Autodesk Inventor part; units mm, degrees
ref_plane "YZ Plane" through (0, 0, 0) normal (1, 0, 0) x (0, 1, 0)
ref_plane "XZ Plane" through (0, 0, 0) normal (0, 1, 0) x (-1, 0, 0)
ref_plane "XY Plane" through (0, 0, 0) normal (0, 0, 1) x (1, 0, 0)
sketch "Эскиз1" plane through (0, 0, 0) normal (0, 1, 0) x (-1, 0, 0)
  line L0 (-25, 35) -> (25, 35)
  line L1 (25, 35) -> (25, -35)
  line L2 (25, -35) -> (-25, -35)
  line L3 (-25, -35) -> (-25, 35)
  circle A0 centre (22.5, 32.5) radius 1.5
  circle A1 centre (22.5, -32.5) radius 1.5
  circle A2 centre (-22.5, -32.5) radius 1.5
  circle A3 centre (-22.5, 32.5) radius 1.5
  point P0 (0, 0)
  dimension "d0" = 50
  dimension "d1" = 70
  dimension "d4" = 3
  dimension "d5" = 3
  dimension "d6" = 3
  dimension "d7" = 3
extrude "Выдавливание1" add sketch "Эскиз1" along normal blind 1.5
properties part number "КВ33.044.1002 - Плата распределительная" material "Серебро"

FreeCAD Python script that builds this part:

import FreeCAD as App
import Part
import Sketcher
from FreeCAD import Vector
Q = App.Units.Quantity

doc = App.newDocument("Part")
params = doc.addObject("Spreadsheet::Sheet", "Params")
for row, (alias, value) in enumerate([
    ("sketch1_diameter", "3 mm"),
    ("sketch1_width", "50 mm"),
    ("sketch1_height", "70 mm"),
    ("pad1_length", "1.5 mm"),
], start=1):
    params.set(f"A{row}", alias)
    params.set(f"B{row}", "=" + value)
    params.setAlias(f"B{row}", alias)

body = doc.addObject("PartDesign::Body", "Body")

# Sketch on XZ plane
sketch1 = body.newObject("Sketcher::SketchObject", "Sketch")
sketch1.AttachmentSupport = (doc.getObject("XZ_Plane"), [""])
sketch1.MapMode = "FlatFace"
sketch1.addGeometry(Part.LineSegment(Vector(-25, 35, 0), Vector(25, 35, 0)), False)
sketch1.addGeometry(Part.LineSegment(Vector(25, 35, 0), Vector(25, -35, 0)), False)
sketch1.addGeometry(Part.LineSegment(Vector(25, -35, 0), Vector(-25, -35, 0)), False)
sketch1.addGeometry(Part.LineSegment(Vector(-25, -35, 0), Vector(-25, 35, 0)), False)
sketch1.addGeometry(Part.Circle(Vector(22.5, -32.5, 0), Vector(0, 0, 1), 1.5), False)
sketch1.addGeometry(Part.Circle(Vector(-22.5, -32.5, 0), Vector(0, 0, 1), 1.5), False)
sketch1.addGeometry(Part.Circle(Vector(22.5, 32.5, 0), Vector(0, 0, 1), 1.5), False)
sketch1.addGeometry(Part.Circle(Vector(-22.5, 32.5, 0), Vector(0, 0, 1), 1.5), False)
sketch1.addConstraint(Sketcher.Constraint("Coincident", 0, 2, 1, 1))
sketch1.addConstraint(Sketcher.Constraint("Coincident", 1, 2, 2, 1))
sketch1.addConstraint(Sketcher.Constraint("Coincident", 2, 2, 3, 1))
sketch1.addConstraint(Sketcher.Constraint("Coincident", 3, 2, 0, 1))
sketch1.addConstraint(Sketcher.Constraint("Horizontal", 0))
sketch1.addConstraint(Sketcher.Constraint("Vertical", 1))
sketch1.addConstraint(Sketcher.Constraint("Horizontal", 2))
sketch1.addConstraint(Sketcher.Constraint("Vertical", 3))
sketch1.addConstraint(Sketcher.Constraint("Equal", 4, 5))
sketch1.addConstraint(Sketcher.Constraint("Equal", 5, 6))
sketch1.addConstraint(Sketcher.Constraint("Equal", 6, 7))
sketch1.addConstraint(Sketcher.Constraint("Symmetric", 5, 3, 6, 3, -1, 1))
sketch1.addConstraint(Sketcher.Constraint("Symmetric", 4, 3, 7, 3, -1, 1))
sketch1.addConstraint(Sketcher.Constraint("Symmetric", 0, 2, 2, 2, -1, 1))
sketch1.addConstraint(Sketcher.Constraint("Symmetric", 4, 3, 5, 3, -2))
sketch1.addConstraint(Sketcher.Constraint("Diameter", 4, Q("3 mm")))
sketch1.addConstraint(Sketcher.Constraint("DistanceX", 0, 1, 0, 2, Q("50 mm")))
sketch1.addConstraint(Sketcher.Constraint("DistanceY", 1, 2, 1, 1, Q("70 mm")))
sketch1.addConstraint(Sketcher.Constraint("DistanceX", 5, 3, 4, 3, Q("45 mm")))
sketch1.addConstraint(Sketcher.Constraint("DistanceY", 4, 3, 6, 3, Q("65 mm")))
sketch1.setExpression("Constraints[15]", "Params.sketch1_diameter")
sketch1.setExpression("Constraints[16]", "Params.sketch1_width")
sketch1.setExpression("Constraints[17]", "Params.sketch1_height")
pad1 = body.newObject("PartDesign::Pad", "Pad")
pad1.Profile = sketch1
pad1.setExpression("Length", "Params.pad1_length")
pad1.Reversed = True

doc.recompute()
